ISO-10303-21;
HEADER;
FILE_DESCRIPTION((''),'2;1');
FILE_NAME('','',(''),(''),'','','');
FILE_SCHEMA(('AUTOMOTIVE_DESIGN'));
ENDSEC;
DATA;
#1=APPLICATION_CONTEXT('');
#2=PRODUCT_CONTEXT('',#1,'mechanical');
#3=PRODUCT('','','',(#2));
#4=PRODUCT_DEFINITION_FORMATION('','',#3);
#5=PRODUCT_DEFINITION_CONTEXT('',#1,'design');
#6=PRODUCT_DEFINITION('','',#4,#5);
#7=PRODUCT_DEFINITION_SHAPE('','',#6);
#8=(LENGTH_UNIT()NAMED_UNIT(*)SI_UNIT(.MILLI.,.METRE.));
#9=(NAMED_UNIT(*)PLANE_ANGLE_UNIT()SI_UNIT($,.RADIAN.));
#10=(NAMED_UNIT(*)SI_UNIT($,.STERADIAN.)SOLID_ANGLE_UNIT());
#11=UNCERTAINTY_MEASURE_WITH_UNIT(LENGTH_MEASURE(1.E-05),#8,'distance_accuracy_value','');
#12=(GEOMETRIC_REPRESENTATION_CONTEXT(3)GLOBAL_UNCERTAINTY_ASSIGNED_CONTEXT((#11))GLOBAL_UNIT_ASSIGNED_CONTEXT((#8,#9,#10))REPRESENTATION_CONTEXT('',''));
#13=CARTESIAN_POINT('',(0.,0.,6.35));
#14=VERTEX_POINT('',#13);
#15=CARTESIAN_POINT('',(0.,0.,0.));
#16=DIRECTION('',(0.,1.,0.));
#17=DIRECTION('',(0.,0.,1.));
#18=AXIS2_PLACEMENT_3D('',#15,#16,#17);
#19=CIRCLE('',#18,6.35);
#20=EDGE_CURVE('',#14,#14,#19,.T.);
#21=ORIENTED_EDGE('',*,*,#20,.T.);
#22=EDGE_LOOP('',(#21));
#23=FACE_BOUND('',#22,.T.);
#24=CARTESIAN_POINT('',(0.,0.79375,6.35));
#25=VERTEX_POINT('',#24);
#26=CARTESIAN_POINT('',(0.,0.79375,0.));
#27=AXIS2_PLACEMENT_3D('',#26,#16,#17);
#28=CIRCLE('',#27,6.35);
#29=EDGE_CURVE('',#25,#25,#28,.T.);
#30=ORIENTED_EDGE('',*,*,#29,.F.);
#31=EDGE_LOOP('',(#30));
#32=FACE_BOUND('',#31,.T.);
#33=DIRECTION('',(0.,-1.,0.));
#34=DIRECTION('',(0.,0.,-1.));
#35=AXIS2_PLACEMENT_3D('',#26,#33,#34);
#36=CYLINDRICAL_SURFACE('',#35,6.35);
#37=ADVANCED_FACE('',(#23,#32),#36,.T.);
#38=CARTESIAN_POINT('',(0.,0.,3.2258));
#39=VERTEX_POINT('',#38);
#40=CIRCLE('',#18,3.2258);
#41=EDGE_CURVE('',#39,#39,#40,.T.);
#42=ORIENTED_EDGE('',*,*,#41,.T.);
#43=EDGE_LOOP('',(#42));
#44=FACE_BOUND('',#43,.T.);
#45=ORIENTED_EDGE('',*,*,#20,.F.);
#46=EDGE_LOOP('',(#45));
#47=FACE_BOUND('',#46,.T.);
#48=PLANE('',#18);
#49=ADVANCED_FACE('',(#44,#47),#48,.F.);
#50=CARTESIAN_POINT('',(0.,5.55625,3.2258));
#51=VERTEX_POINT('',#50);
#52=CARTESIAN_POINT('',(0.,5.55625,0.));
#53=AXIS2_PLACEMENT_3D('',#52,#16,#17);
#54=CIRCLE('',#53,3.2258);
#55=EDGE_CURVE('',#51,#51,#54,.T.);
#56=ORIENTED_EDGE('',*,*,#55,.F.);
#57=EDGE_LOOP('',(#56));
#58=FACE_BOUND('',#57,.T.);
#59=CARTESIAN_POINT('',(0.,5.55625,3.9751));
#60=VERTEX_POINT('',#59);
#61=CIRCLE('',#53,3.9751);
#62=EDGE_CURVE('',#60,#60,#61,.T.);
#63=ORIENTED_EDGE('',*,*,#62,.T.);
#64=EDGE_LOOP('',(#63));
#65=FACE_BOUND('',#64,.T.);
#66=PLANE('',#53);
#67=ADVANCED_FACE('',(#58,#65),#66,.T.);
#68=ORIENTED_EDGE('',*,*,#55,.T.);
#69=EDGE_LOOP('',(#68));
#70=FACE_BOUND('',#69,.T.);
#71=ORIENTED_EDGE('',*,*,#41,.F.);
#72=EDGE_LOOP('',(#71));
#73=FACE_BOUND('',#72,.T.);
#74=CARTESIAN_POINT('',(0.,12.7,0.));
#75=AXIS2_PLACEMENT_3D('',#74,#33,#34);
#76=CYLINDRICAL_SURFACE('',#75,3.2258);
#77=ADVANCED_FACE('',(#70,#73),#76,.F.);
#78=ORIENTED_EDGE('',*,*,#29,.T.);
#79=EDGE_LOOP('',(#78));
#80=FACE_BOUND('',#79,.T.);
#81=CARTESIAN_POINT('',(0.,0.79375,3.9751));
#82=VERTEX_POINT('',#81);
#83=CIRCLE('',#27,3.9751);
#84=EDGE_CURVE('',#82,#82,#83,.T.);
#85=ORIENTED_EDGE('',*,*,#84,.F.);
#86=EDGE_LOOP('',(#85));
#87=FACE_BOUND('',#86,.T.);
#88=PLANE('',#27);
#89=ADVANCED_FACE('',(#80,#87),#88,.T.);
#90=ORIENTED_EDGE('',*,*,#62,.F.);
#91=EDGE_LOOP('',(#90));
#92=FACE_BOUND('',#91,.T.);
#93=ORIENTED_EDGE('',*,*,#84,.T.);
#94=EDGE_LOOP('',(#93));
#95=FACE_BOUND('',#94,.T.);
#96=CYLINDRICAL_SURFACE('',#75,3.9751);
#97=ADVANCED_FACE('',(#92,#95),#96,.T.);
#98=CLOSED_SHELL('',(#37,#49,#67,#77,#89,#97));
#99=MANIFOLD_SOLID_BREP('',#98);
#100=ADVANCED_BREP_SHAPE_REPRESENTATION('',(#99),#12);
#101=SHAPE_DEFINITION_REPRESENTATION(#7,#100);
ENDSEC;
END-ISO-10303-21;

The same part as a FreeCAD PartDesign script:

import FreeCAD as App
import Part
import Sketcher
Q = App.Units.Quantity

doc = App.newDocument("Part")
params = doc.addObject("Spreadsheet::Sheet", "Params")
for row, (alias, value) in enumerate([
    ("sketch1_diameter", "0.313 in"),
    ("sketch1_diameter2", "0.254 in"),
    ("pad1_length", "0.5 in"),
    ("sketch2_diameter", "0.5 in"),
    ("sketch2_diameter2", "0.313 in"),
    ("pad2_length", "0.03125 in"),
    ("sketch3_diameter", "0.5 in"),
], start=1):
    params.set(f"A{row}", alias)
    params.set(f"B{row}", "=" + value)
    params.setAlias(f"B{row}", alias)

body = doc.addObject("PartDesign::Body", "Body")

# Sketch on XZ plane
sketch1 = body.newObject("Sketcher::SketchObject", "Sketch")
sketch1.AttachmentSupport = (doc.getObject("XZ_Plane"), [""])
sketch1.MapMode = "FlatFace"
sketch1.addGeometry([
    Part.Circle(App.Vector(0, 0, 0), App.Vector(0, 0, 1), 3.9751),
    Part.Circle(App.Vector(0, 0, 0), App.Vector(0, 0, 1), 3.2258),
], False)
sketch1.addConstraint([
    Sketcher.Constraint("Coincident", 0, 3, -1, 1),
    Sketcher.Constraint("Coincident", 1, 3, -1, 1),
    Sketcher.Constraint("Diameter", 0, Q("0.313 in")),
    Sketcher.Constraint("Diameter", 1, Q("0.254 in")),
])
sketch1.setExpression("Constraints[2]", "Params.sketch1_diameter")
sketch1.setExpression("Constraints[3]", "Params.sketch1_diameter2")
pad1 = body.newObject("PartDesign::Pad", "Pad")
pad1.Profile = sketch1
pad1.setExpression("Length", "Params.pad1_length")
pad1.Reversed = True

# Sketch on XZ plane
sketch2 = body.newObject("Sketcher::SketchObject", "Sketch001")
sketch2.AttachmentSupport = (doc.getObject("XZ_Plane"), [""])
sketch2.MapMode = "FlatFace"
sketch2.addGeometry([
    Part.Circle(App.Vector(0, 0, 0), App.Vector(0, 0, 1), 6.35),
    Part.Circle(App.Vector(0, 0, 0), App.Vector(0, 0, 1), 3.9751),
], False)
sketch2.addConstraint([
    Sketcher.Constraint("Coincident", 0, 3, -1, 1),
    Sketcher.Constraint("Coincident", 1, 3, -1, 1),
    Sketcher.Constraint("Diameter", 0, Q("0.5 in")),
    Sketcher.Constraint("Diameter", 1, Q("0.313 in")),
])
sketch2.setExpression("Constraints[2]", "Params.sketch2_diameter")
sketch2.setExpression("Constraints[3]", "Params.sketch2_diameter2")
pad2 = body.newObject("PartDesign::Pad", "Pad001")
pad2.Profile = sketch2
pad2.setExpression("Length", "Params.pad2_length")
pad2.Reversed = True

# Sketch on XZ plane
sketch3 = body.newObject("Sketcher::SketchObject", "Sketch002")
sketch3.AttachmentSupport = (doc.getObject("XZ_Plane"), [""])
sketch3.MapMode = "FlatFace"
sketch3.AttachmentOffset = App.Placement(App.Vector(0, 0, -0.21875 * 25.4), App.Rotation())
sketch3.addGeometry(Part.Circle(App.Vector(0, 0, 0), App.Vector(0, 0, 1), 6.35), False)
sketch3.addConstraint([
    Sketcher.Constraint("Coincident", 0, 3, -1, 1),
    Sketcher.Constraint("Diameter", 0, Q("0.5 in")),
])
sketch3.setExpression("Constraints[1]", "Params.sketch3_diameter")
pocket1 = body.newObject("PartDesign::Pocket", "Pocket")
pocket1.Profile = sketch3
pocket1.Type = "ThroughAll"

doc.recompute()
